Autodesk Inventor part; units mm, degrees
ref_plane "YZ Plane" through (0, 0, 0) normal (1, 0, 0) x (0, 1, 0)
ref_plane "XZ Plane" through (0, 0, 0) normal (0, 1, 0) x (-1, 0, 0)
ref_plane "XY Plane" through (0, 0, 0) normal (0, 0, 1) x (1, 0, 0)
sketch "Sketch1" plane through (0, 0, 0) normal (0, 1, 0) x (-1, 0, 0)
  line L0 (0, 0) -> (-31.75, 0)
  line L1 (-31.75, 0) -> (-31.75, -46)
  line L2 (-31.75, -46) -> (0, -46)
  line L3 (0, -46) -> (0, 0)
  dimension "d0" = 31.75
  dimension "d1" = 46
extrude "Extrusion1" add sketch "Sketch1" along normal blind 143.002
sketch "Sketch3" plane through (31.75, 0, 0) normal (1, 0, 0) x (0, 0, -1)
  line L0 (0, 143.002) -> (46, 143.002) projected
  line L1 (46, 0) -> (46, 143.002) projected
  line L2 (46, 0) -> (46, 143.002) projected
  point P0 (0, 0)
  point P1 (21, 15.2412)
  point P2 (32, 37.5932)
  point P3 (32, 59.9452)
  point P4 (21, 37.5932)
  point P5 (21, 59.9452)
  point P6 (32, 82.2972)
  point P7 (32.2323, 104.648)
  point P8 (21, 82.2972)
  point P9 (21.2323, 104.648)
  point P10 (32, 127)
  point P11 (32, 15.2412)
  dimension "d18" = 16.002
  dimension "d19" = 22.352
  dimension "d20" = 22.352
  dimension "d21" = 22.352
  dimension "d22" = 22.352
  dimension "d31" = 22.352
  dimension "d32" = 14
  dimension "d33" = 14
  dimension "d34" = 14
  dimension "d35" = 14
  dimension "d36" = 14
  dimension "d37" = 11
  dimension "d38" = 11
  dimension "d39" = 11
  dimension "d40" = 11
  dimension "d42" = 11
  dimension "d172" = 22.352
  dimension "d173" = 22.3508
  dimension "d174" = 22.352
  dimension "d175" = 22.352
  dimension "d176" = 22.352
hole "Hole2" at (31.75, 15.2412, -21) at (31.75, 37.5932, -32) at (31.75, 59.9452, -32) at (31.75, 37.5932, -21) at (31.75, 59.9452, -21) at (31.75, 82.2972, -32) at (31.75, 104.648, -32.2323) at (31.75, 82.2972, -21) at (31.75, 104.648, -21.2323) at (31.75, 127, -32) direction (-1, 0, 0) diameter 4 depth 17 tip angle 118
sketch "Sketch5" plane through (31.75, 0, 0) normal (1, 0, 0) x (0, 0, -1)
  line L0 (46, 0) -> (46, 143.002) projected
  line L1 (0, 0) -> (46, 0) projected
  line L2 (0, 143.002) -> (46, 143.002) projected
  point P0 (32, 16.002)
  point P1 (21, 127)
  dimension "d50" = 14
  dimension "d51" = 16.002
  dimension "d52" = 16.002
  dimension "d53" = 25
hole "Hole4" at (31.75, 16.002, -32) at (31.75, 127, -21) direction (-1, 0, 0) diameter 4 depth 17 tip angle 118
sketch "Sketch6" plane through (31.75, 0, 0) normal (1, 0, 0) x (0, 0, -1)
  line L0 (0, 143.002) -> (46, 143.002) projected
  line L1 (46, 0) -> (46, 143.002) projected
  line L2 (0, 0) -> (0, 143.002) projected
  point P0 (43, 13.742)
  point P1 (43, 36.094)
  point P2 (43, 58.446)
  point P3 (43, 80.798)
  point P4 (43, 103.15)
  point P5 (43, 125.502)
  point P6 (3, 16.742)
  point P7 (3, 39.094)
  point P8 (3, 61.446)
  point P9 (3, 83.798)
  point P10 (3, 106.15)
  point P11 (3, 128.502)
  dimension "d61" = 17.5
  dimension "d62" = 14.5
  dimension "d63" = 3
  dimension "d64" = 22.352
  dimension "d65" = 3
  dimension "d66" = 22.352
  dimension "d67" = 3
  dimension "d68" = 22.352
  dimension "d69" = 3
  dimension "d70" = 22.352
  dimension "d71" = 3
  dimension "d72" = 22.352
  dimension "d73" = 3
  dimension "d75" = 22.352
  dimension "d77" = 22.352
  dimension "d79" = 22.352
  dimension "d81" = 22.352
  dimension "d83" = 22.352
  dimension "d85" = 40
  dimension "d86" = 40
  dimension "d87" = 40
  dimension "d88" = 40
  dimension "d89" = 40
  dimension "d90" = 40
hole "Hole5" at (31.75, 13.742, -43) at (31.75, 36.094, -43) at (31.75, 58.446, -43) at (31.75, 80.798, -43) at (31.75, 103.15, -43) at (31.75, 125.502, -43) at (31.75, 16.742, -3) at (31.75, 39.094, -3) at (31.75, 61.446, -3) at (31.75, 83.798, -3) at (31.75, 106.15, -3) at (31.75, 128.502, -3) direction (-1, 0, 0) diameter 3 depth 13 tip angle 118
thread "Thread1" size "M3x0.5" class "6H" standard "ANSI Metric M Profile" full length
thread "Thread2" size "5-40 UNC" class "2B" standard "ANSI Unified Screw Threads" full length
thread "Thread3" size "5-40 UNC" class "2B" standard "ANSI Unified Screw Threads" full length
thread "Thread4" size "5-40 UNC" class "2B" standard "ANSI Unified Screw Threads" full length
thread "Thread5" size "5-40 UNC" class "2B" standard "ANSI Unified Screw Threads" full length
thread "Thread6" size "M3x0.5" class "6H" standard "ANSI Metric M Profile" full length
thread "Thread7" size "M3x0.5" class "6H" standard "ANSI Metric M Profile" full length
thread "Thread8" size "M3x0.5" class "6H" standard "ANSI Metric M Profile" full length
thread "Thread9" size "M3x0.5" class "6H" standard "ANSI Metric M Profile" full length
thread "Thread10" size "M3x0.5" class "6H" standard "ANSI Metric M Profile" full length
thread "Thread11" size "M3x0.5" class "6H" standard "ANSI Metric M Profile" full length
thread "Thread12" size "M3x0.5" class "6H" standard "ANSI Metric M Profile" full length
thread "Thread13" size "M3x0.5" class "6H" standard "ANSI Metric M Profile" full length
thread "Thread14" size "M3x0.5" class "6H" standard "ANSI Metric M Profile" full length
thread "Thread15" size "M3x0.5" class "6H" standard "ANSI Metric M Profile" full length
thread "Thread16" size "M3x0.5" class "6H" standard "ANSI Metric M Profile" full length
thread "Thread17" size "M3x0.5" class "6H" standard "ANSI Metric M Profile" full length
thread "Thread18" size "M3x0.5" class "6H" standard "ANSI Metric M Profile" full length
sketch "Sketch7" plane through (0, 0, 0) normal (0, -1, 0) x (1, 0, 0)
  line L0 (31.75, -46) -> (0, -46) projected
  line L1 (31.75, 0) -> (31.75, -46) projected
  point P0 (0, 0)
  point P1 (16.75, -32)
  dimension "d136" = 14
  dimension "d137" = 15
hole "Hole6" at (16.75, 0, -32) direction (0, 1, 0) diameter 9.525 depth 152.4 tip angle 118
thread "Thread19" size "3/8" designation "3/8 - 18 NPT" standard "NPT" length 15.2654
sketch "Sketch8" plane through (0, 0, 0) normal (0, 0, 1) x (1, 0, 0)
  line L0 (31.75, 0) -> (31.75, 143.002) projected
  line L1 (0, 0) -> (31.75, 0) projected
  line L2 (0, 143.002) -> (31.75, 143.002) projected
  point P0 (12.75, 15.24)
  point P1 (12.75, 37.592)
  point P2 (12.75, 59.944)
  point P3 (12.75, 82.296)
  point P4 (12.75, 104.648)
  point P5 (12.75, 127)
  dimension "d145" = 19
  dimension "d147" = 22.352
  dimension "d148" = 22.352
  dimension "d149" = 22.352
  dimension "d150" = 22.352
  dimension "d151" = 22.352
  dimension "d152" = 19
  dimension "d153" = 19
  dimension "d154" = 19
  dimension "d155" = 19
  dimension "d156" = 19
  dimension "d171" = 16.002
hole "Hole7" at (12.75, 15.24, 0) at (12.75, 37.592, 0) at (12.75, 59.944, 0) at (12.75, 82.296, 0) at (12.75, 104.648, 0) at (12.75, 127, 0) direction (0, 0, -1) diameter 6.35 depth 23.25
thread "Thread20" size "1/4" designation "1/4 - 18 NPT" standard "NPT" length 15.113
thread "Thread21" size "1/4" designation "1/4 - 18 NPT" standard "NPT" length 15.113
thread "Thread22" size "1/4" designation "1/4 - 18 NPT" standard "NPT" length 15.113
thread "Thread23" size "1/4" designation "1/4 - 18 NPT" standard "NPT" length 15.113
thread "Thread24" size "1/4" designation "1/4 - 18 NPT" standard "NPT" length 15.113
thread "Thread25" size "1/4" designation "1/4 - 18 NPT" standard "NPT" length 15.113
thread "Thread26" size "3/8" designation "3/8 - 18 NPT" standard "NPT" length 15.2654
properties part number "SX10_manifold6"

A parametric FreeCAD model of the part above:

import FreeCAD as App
import Part
import Sketcher
from FreeCAD import Vector
Q = App.Units.Quantity

doc = App.newDocument("Part")
body = doc.addObject("PartDesign::Body", "Body")

sketch1 = doc.addObject("Sketcher::SketchObject", "Sketch")
body.addObject(sketch1)
sketch1.AttachmentSupport = (doc.XZ_Plane, [""])
sketch1.MapMode = "FlatFace"
sketch1.addGeometry([
    Part.LineSegment(Vector(0, -46, 0), Vector(0, 0, 0)),
    Part.LineSegment(Vector(0, 0, 0), Vector(32, 0, 0)),
    Part.LineSegment(Vector(32, 0, 0), Vector(32, -46, 0)),
    Part.LineSegment(Vector(32, -46, 0), Vector(0, -46, 0)),
], False)
sketch1.addConstraint([
    Sketcher.Constraint("Coincident", 0, 2, 1, 1),
    Sketcher.Constraint("Coincident", 1, 2, 2, 1),
    Sketcher.Constraint("Coincident", 2, 2, 3, 1),
    Sketcher.Constraint("Coincident", 3, 2, 0, 1),
    Sketcher.Constraint("Vertical", 0),
    Sketcher.Constraint("Horizontal", 1),
    Sketcher.Constraint("Vertical", 2),
    Sketcher.Constraint("Horizontal", 3),
    Sketcher.Constraint("Coincident", 0, 2, -1, 1),
    Sketcher.Constraint("DistanceX", 1, 1, 1, 2, Q("1.25 in")),
    Sketcher.Constraint("DistanceY", 0, 1, 0, 2, Q("46 mm")),
])
pad1 = doc.addObject("PartDesign::Pad", "Pad")
body.addObject(pad1)
pad1.Profile = sketch1
pad1.Length = Q("5.63 in")
pad1.Reversed = True

sketch2 = doc.addObject("Sketcher::SketchObject", "Sketch001")
body.addObject(sketch2)
sketch2.AttachmentSupport = (doc.YZ_Plane, [""])
sketch2.MapMode = "FlatFace"
sketch2.AttachmentOffset = App.Placement(Vector(0, 0, 1.25 * 25.4), App.Rotation())
sketch2.addGeometry([
    Part.Circle(Vector(15.2, -21, 0), Vector(0, 0, 1), 2),
    Part.Circle(Vector(37.6, -32, 0), Vector(0, 0, 1), 2),
    Part.Circle(Vector(59.9, -32, 0), Vector(0, 0, 1), 2),
    Part.Circle(Vector(37.6, -21, 0), Vector(0, 0, 1), 2),
    Part.Circle(Vector(59.9, -21, 0), Vector(0, 0, 1), 2),
    Part.Circle(Vector(82.3, -32, 0), Vector(0, 0, 1), 2),
    Part.Circle(Vector(104.6, -32.2, 0), Vector(0, 0, 1), 2),
    Part.Circle(Vector(82.3, -21, 0), Vector(0, 0, 1), 2),
    Part.Circle(Vector(104.6, -21.2, 0), Vector(0, 0, 1), 2),
    Part.Circle(Vector(127, -32, 0), Vector(0, 0, 1), 2),
], False)
sketch2.addConstraint([
    Sketcher.Constraint("Equal", 0, 1),
    Sketcher.Constraint("Equal", 1, 2),
    Sketcher.Constraint("Equal", 2, 3),
    Sketcher.Constraint("Equal", 3, 4),
    Sketcher.Constraint("Equal", 4, 5),
    Sketcher.Constraint("Equal", 5, 6),
    Sketcher.Constraint("Equal", 6, 7),
    Sketcher.Constraint("Equal", 7, 8),
    Sketcher.Constraint("Equal", 8, 9),
    Sketcher.Constraint("Horizontal", 1, 3, 2, 3),
    Sketcher.Constraint("Horizontal", 0, 3, 3, 3),
    Sketcher.Constraint("Horizontal", 3, 3, 4, 3),
    Sketcher.Constraint("Horizontal", 2, 3, 5, 3),
    Sketcher.Constraint("Horizontal", 4, 3, 7, 3),
    Sketcher.Constraint("Horizontal", 5, 3, 9, 3),
    Sketcher.Constraint("Vertical", 1, 3, 3, 3),
    Sketcher.Constraint("Vertical", 2, 3, 4, 3),
    Sketcher.Constraint("Vertical", 5, 3, 7, 3),
    Sketcher.Constraint("Vertical", 6, 3, 8, 3),
    Sketcher.Constraint("DistanceX", -1, 1, 9, 3, Q("5 in")),
    Sketcher.Constraint("Diameter", 0, Q("4 mm")),
    Sketcher.Constraint("DistanceX", -1, 1, 6, 3, Q("4.12 in")),
    Sketcher.Constraint("DistanceX", 0, 3, 1, 3, Q("0.88 in")),
    Sketcher.Constraint("DistanceX", 1, 3, 2, 3, Q("0.88 in")),
    Sketcher.Constraint("DistanceX", 2, 3, 5, 3, Q("0.88 in")),
    Sketcher.Constraint("DistanceY", 6, 3, -1, 1, Q("1.269 in")),
    Sketcher.Constraint("DistanceX", -1, 1, 0, 3, Q("15.2412 mm")),
    Sketcher.Constraint("DistanceY", 0, 3, -1, 1, Q("21 mm")),
    Sketcher.Constraint("DistanceY", 1, 3, -1, 1, Q("32 mm")),
    Sketcher.Constraint("DistanceY", 8, 3, -1, 1, Q("21.2323 mm")),
])
doc.recompute()
hole = doc.addObject("PartDesign::Hole", "Hole")
body.addObject(hole)
hole.Profile = sketch2
hole.ThreadType = "None"
hole.Diameter = 4
hole.DepthType = "Dimension"
hole.Depth = Q("0.6692913 in")
hole.DrillPoint = "Angled"
hole.DrillPointAngle = 118

sketch3 = doc.addObject("Sketcher::SketchObject", "Sketch002")
body.addObject(sketch3)
sketch3.AttachmentSupport = (doc.YZ_Plane, [""])
sketch3.MapMode = "FlatFace"
sketch3.AttachmentOffset = App.Placement(Vector(0, 0, 1.25 * 25.4), App.Rotation())
sketch3.addGeometry([
    Part.Circle(Vector(16, -32, 0), Vector(0, 0, 1), 2),
    Part.Circle(Vector(127, -21, 0), Vector(0, 0, 1), 2),
], False)
sketch3.addConstraint([
    Sketcher.Constraint("Equal", 0, 1),
    Sketcher.Constraint("DistanceX", -1, 1, 1, 3, Q("5 in")),
    Sketcher.Constraint("Diameter", 0, Q("4 mm")),
    Sketcher.Constraint("DistanceX", -1, 1, 0, 3, Q("0.63 in")),
    Sketcher.Constraint("DistanceY", 0, 3, -1, 1, Q("32 mm")),
    Sketcher.Constraint("DistanceY", 1, 3, -1, 1, Q("21 mm")),
])
doc.recompute()
hole2 = doc.addObject("PartDesign::Hole", "Hole001")
body.addObject(hole2)
hole2.Profile = sketch3
hole2.ThreadType = "None"
hole2.Diameter = 4
hole2.DepthType = "Dimension"
hole2.Depth = Q("0.6692913 in")
hole2.DrillPoint = "Angled"
hole2.DrillPointAngle = 118

sketch4 = doc.addObject("Sketcher::SketchObject", "Sketch003")
body.addObject(sketch4)
sketch4.AttachmentSupport = (doc.YZ_Plane, [""])
sketch4.MapMode = "FlatFace"
sketch4.AttachmentOffset = App.Placement(Vector(0, 0, 1.25 * 25.4), App.Rotation())
sketch4.addGeometry([
    Part.Circle(Vector(13.7, -43, 0), Vector(0, 0, 1), 1.5),
    Part.Circle(Vector(36.1, -43, 0), Vector(0, 0, 1), 1.5),
    Part.Circle(Vector(58.4, -43, 0), Vector(0, 0, 1), 1.5),
    Part.Circle(Vector(80.8, -43, 0), Vector(0, 0, 1), 1.5),
    Part.Circle(Vector(103.2, -43, 0), Vector(0, 0, 1), 1.5),
    Part.Circle(Vector(125.5, -43, 0), Vector(0, 0, 1), 1.5),
    Part.Circle(Vector(16.7, -3, 0), Vector(0, 0, 1), 1.5),
    Part.Circle(Vector(39.1, -3, 0), Vector(0, 0, 1), 1.5),
    Part.Circle(Vector(61.4, -3, 0), Vector(0, 0, 1), 1.5),
    Part.Circle(Vector(83.8, -3, 0), Vector(0, 0, 1), 1.5),
    Part.Circle(Vector(106.2, -3, 0), Vector(0, 0, 1), 1.5),
    Part.Circle(Vector(128.5, -3, 0), Vector(0, 0, 1), 1.5),
], False)
sketch4.addConstraint([
    Sketcher.Constraint("Equal", 0, 1),
    Sketcher.Constraint("Equal", 1, 2),
    Sketcher.Constraint("Equal", 2, 3),
    Sketcher.Constraint("Equal", 3, 4),
    Sketcher.Constraint("Equal", 4, 5),
    Sketcher.Constraint("Equal", 5, 6),
    Sketcher.Constraint("Equal", 6, 7),
    Sketcher.Constraint("Equal", 7, 8),
    Sketcher.Constraint("Equal", 8, 9),
    Sketcher.Constraint("Equal", 9, 10),
    Sketcher.Constraint("Equal", 10, 11),
    Sketcher.Constraint("Horizontal", 0, 3, 1, 3),
    Sketcher.Constraint("Horizontal", 1, 3, 2, 3),
    Sketcher.Constraint("Horizontal", 2, 3, 3, 3),
    Sketcher.Constraint("Horizontal", 3, 3, 4, 3),
    Sketcher.Constraint("Horizontal", 4, 3, 5, 3),
    Sketcher.Constraint("Horizontal", 6, 3, 7, 3),
    Sketcher.Constraint("Horizontal", 7, 3, 8, 3),
    Sketcher.Constraint("Horizontal", 8, 3, 9, 3),
    Sketcher.Constraint("Horizontal", 9, 3, 10, 3),
    Sketcher.Constraint("Horizontal", 10, 3, 11, 3),
    Sketcher.Constraint("Diameter", 0, Q("0.1181 in")),
    Sketcher.Constraint("DistanceX", 0, 3, 5, 3, Q("4.4 in")),
    Sketcher.Constraint("DistanceX", 0, 3, 1, 3, Q("0.88 in")),
    Sketcher.Constraint("DistanceX", 1, 3, 2, 3, Q("0.88 in")),
    Sketcher.Constraint("DistanceX", 2, 3, 3, 3, Q("0.88 in")),
    Sketcher.Constraint("DistanceX", 3, 3, 4, 3, Q("0.88 in")),
    Sketcher.Constraint("DistanceX", 6, 3, 7, 3, Q("0.88 in")),
    Sketcher.Constraint("DistanceX", 7, 3, 8, 3, Q("0.88 in")),
    Sketcher.Constraint("DistanceX", 8, 3, 9, 3, Q("0.88 in")),
    Sketcher.Constraint("DistanceX", 9, 3, 10, 3, Q("0.88 in")),
    Sketcher.Constraint("DistanceX", 10, 3, 11, 3, Q("0.88 in")),
    Sketcher.Constraint("DistanceY", 6, 3, -1, 1, Q("0.1181 in")),
    Sketcher.Constraint("DistanceX", 0, 3, 6, 3, Q("0.1181 in")),
    Sketcher.Constraint("DistanceY", 0, 3, 6, 3, Q("1.5748 in")),
    Sketcher.Constraint("DistanceX", -1, 1, 0, 3, Q("13.742 mm")),
])
doc.recompute()
hole3 = doc.addObject("PartDesign::Hole", "Hole002")
body.addObject(hole3)
hole3.Profile = sketch4
hole3.ThreadType = "None"
hole3.Diameter = Q("0.1181102 in")
hole3.DepthType = "Dimension"
hole3.Depth = Q("0.511811 in")
hole3.DrillPoint = "Angled"
hole3.DrillPointAngle = 118

sketch5 = doc.addObject("Sketcher::SketchObject", "Sketch004")
body.addObject(sketch5)
sketch5.AttachmentSupport = (doc.XZ_Plane, [""])
sketch5.MapMode = "FlatFace"
sketch5.addGeometry(Part.Circle(Vector(16.8, -32, 0), Vector(0, 0, 1), 4.8), False)
sketch5.addConstraint([
    Sketcher.Constraint("Diameter", 0, Q("0.375 in")),
    Sketcher.Constraint("DistanceX", -1, 1, 0, 3, Q("16.75 mm")),
    Sketcher.Constraint("DistanceY", 0, 3, -1, 1, Q("32 mm")),
])
doc.recompute()
hole4 = doc.addObject("PartDesign::Hole", "Hole003")
body.addObject(hole4)
hole4.Profile = sketch5
hole4.ThreadType = "None"
hole4.Diameter = Q("0.375 in")
hole4.DepthType = "Dimension"
hole4.Depth = Q("6 in")
hole4.DrillPoint = "Angled"
hole4.DrillPointAngle = 118

sketch6 = doc.addObject("Sketcher::SketchObject", "Sketch005")
body.addObject(sketch6)
sketch6.AttachmentSupport = (doc.XY_Plane, [""])
sketch6.MapMode = "FlatFace"
sketch6.addGeometry([
    Part.Circle(Vector(12.8, 15.2, 0), Vector(0, 0, 1), 3.2),
    Part.Circle(Vector(12.8, 37.6, 0), Vector(0, 0, 1), 3.2),
    Part.Circle(Vector(12.8, 59.9, 0), Vector(0, 0, 1), 3.2),
    Part.Circle(Vector(12.8, 82.3, 0), Vector(0, 0, 1), 3.2),
    Part.Circle(Vector(12.8, 104.6, 0), Vector(0, 0, 1), 3.2),
    Part.Circle(Vector(12.8, 127, 0), Vector(0, 0, 1), 3.2),
], False)
sketch6.addConstraint([
    Sketcher.Constraint("Equal", 0, 1),
    Sketcher.Constraint("Equal", 1, 2),
    Sketcher.Constraint("Equal", 2, 3),
    Sketcher.Constraint("Equal", 3, 4),
    Sketcher.Constraint("Equal", 4, 5),
    Sketcher.Constraint("Vertical", 0, 3, 1, 3),
    Sketcher.Constraint("Vertical", 1, 3, 2, 3),
    Sketcher.Constraint("Vertical", 2, 3, 3, 3),
    Sketcher.Constraint("Vertical", 3, 3, 4, 3),
    Sketcher.Constraint("Vertical", 4, 3, 5, 3),
    Sketcher.Constraint("Diameter", 0, Q("0.25 in")),
    Sketcher.Constraint("DistanceY", -1, 1, 5, 3, Q("5 in")),
    Sketcher.Constraint("DistanceY", -1, 1, 0, 3, Q("0.6 in")),
    Sketcher.Constraint("DistanceY", -1, 1, 1, 3, Q("1.48 in")),
    Sketcher.Constraint("DistanceY", -1, 1, 2, 3, Q("2.36 in")),
    Sketcher.Constraint("DistanceY", -1, 1, 3, 3, Q("3.24 in")),
    Sketcher.Constraint("DistanceY", -1, 1, 4, 3, Q("4.12 in")),
    Sketcher.Constraint("DistanceX", -1, 1, 0, 3, Q("12.75 mm")),
])
doc.recompute()
hole5 = doc.addObject("PartDesign::Hole", "Hole004")
body.addObject(hole5)
hole5.Profile = sketch6
hole5.ThreadType = "None"
hole5.Diameter = Q("0.25 in")
hole5.DepthType = "Dimension"
hole5.Depth = 23.25
hole5.DrillPoint = "Flat"

doc.recompute()
